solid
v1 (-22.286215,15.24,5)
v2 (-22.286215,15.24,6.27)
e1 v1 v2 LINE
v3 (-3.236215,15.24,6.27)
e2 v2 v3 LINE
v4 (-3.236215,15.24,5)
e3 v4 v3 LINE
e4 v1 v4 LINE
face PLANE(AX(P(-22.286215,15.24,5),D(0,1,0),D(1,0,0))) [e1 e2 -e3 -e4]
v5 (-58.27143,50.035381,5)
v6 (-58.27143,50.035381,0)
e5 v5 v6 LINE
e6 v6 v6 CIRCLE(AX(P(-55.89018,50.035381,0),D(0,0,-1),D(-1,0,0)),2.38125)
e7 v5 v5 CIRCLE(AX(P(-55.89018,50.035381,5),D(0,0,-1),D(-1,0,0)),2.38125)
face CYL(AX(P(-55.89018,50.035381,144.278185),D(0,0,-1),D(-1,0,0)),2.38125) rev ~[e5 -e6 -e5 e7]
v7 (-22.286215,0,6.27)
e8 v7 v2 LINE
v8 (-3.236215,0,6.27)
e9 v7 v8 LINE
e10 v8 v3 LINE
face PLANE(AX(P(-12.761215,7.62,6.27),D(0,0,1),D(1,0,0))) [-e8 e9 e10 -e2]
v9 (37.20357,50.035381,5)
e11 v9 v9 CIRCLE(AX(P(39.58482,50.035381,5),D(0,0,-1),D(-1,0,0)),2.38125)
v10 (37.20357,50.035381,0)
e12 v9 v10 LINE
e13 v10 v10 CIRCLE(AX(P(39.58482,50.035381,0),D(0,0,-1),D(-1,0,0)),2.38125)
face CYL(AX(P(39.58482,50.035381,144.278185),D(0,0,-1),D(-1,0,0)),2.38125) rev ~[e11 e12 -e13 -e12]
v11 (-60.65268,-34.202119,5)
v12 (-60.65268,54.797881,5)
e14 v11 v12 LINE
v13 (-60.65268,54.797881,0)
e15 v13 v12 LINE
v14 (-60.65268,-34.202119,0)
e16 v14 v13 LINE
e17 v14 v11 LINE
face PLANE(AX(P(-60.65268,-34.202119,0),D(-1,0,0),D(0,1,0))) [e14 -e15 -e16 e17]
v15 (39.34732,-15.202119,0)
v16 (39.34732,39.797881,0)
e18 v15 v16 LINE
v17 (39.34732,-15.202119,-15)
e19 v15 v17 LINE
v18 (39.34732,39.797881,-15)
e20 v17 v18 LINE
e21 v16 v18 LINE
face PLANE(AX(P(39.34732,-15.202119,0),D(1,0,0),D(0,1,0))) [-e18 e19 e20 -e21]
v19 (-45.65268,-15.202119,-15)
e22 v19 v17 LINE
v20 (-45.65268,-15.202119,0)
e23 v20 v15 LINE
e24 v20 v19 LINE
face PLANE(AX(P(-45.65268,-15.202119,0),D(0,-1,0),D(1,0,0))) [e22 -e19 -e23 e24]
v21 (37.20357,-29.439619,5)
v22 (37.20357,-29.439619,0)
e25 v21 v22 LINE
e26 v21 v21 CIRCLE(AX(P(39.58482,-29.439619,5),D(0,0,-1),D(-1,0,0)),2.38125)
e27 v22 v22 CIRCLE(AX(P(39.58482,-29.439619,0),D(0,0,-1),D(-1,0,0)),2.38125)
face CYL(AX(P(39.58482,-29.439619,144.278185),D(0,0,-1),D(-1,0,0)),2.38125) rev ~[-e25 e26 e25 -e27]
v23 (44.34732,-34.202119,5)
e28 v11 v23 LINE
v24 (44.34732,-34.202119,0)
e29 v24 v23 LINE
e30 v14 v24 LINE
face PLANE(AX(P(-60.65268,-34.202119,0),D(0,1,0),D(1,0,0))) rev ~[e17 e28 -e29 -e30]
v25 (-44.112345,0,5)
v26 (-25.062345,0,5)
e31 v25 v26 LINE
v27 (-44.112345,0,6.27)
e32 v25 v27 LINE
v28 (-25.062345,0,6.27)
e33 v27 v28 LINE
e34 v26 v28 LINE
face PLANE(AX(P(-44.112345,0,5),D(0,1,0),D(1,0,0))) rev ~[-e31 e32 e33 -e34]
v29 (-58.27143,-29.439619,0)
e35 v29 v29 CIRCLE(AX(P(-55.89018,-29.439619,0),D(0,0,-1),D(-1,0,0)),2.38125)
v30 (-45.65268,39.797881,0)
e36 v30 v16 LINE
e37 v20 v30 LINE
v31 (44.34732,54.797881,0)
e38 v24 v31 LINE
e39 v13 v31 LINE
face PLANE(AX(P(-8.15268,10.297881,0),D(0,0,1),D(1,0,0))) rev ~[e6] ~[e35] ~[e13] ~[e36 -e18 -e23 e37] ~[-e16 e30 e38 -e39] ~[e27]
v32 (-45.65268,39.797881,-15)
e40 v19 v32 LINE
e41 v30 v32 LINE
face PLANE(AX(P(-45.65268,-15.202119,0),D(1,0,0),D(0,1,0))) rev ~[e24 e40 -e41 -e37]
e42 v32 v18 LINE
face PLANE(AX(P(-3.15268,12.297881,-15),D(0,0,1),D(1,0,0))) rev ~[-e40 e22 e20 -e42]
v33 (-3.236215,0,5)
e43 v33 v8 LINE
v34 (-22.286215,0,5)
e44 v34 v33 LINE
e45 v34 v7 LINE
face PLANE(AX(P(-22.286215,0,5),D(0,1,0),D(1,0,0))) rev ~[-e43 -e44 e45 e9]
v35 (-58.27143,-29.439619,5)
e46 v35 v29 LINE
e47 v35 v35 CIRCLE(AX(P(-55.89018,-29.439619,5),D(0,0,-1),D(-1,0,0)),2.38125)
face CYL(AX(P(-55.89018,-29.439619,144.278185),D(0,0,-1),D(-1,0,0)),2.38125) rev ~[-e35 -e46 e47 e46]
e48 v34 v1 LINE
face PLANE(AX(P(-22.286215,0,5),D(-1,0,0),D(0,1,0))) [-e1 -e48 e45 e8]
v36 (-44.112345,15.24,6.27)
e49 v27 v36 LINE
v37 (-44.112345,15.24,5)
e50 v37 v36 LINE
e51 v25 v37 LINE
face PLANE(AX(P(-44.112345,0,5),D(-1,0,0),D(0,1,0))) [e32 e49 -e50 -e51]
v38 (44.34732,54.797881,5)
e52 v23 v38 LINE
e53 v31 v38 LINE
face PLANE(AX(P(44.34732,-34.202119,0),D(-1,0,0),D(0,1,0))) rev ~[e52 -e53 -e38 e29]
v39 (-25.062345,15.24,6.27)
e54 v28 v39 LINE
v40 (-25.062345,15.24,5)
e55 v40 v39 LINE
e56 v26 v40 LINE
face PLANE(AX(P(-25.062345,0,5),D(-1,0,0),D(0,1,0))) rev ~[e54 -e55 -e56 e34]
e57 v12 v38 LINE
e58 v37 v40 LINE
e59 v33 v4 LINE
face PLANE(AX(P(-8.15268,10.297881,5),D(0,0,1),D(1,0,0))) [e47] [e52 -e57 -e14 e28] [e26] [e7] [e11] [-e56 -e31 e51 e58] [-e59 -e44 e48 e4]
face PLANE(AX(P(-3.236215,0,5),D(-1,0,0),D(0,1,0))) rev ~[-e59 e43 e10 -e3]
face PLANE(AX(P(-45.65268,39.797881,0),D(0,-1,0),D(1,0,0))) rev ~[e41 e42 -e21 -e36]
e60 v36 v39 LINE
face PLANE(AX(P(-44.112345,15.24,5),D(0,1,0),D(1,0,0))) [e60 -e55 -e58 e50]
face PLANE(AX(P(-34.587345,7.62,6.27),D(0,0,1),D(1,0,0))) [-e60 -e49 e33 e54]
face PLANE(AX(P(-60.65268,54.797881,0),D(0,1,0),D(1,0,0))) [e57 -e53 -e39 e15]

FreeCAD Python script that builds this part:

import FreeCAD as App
import Part
import Sketcher

V = App.Vector


def add_polygon(sketch, points):
    """Adds a closed chain of lines whose ends are joined by coincident constraints."""
    first, n = sketch.GeometryCount, len(points)
    for a, b in zip(points, points[1:] + points[:1]):
        sketch.addGeometry(Part.LineSegment(App.Vector(*a, 0), App.Vector(*b, 0)), False)
    for i in range(n):
        sketch.addConstraint(Sketcher.Constraint("Coincident", first + i, 2, first + (i + 1) % n, 1))

doc = App.newDocument("Part")
body = doc.addObject("PartDesign::Body", "Body")

# Sketch on XY plane
sketch1 = doc.addObject("Sketcher::SketchObject", "Sketch")
body.addObject(sketch1)
sketch1.AttachmentSupport = (doc.XY_Plane, [""])
sketch1.MapMode = "FlatFace"
add_polygon(sketch1, [(-61, 55), (-61, -34), (44, -34), (44, 55)])  # lines 0-3
sketch1.addConstraint([
    Sketcher.Constraint("Vertical", 0),
    Sketcher.Constraint("Horizontal", 1),
    Sketcher.Constraint("Vertical", 2),
    Sketcher.Constraint("Horizontal", 3),
    Sketcher.Constraint("DistanceX", 1, 1, 1, 2, 105.0),
    Sketcher.Constraint("DistanceY", 0, 2, 0, 1, 89.0),
    Sketcher.Constraint("DistanceX", 0, 2, -1, 1, 60.65268),
    Sketcher.Constraint("DistanceY", 0, 2, -1, 1, 34.202119),
])
pad1 = doc.addObject("PartDesign::Pad", "Pad")
body.addObject(pad1)
pad1.Profile = sketch1
pad1.Length = 5

# Sketch on XY plane
sketch2 = doc.addObject("Sketcher::SketchObject", "Sketch001")
body.addObject(sketch2)
sketch2.AttachmentSupport = (doc.XY_Plane, [""])
sketch2.MapMode = "FlatFace"
add_polygon(sketch2, [(-46, 40), (-46, -15), (39, -15), (39, 40)])  # lines 0-3
sketch2.addConstraint([
    Sketcher.Constraint("Vertical", 0),
    Sketcher.Constraint("Horizontal", 1),
    Sketcher.Constraint("Vertical", 2),
    Sketcher.Constraint("Horizontal", 3),
    Sketcher.Constraint("DistanceX", 1, 1, 1, 2, 85.0),
    Sketcher.Constraint("DistanceY", 0, 2, 0, 1, 55.0),
    Sketcher.Constraint("DistanceX", 0, 2, -1, 1, 45.65268),
    Sketcher.Constraint("DistanceY", 0, 2, -1, 1, 15.202119),
])
pad2 = doc.addObject("PartDesign::Pad", "Pad001")
body.addObject(pad2)
pad2.Profile = sketch2
pad2.Length = 15
pad2.Reversed = True

# Sketch on XY plane
sketch3 = doc.addObject("Sketcher::SketchObject", "Sketch002")
body.addObject(sketch3)
sketch3.AttachmentSupport = (doc.XY_Plane, [""])
sketch3.MapMode = "FlatFace"
sketch3.AttachmentOffset = App.Placement(V(0, 0, 5), App.Rotation())
add_polygon(sketch3, [(-44, 15), (-44, 0), (-25, 0), (-25, 15)])  # lines 0-3
add_polygon(sketch3, [(-22, 15), (-22, 0), (-3, 0), (-3, 15)])  # lines 4-7
sketch3.addConstraint([
    Sketcher.Constraint("Vertical", 0),
    Sketcher.Constraint("Horizontal", 1),
    Sketcher.Constraint("Vertical", 2),
    Sketcher.Constraint("Horizontal", 3),
    Sketcher.Constraint("Vertical", 4),
    Sketcher.Constraint("Horizontal", 5),
    Sketcher.Constraint("Vertical", 6),
    Sketcher.Constraint("Horizontal", 7),
    Sketcher.Constraint("PointOnObject", 0, 2, -1),
    Sketcher.Constraint("PointOnObject", 4, 2, -1),
    Sketcher.Constraint("Horizontal", 3, 2, 6, 2),
    Sketcher.Constraint("Equal", 3, 5),
    Sketcher.Constraint("DistanceX", 1, 1, 1, 2, 19.05),
    Sketcher.Constraint("DistanceY", 0, 2, 0, 1, 15.24),
    Sketcher.Constraint("DistanceX", 1, 2, 4, 2, 2.77613),
    Sketcher.Constraint("DistanceX", 0, 2, -1, 1, 44.112345),
])
pad3 = doc.addObject("PartDesign::Pad", "Pad002")
body.addObject(pad3)
pad3.Profile = sketch3
pad3.Length = 1.27

# Sketch on XY plane
sketch4 = doc.addObject("Sketcher::SketchObject", "Sketch003")
body.addObject(sketch4)
sketch4.AttachmentSupport = (doc.XY_Plane, [""])
sketch4.MapMode = "FlatFace"
sketch4.AttachmentOffset = App.Placement(V(0, 0, 5), App.Rotation())
sketch4.addGeometry([
    Part.Circle(V(-55.9, 50, 0), V(0, 0, 1), 2.4),
    Part.Circle(V(-55.9, -29.4, 0), V(0, 0, 1), 2.4),
    Part.Circle(V(39.6, 50, 0), V(0, 0, 1), 2.4),
    Part.Circle(V(39.6, -29.4, 0), V(0, 0, 1), 2.4),
], False)
sketch4.addConstraint([
    Sketcher.Constraint("Equal", 0, 1),
    Sketcher.Constraint("Equal", 1, 2),
    Sketcher.Constraint("Equal", 2, 3),
    Sketcher.Constraint("Horizontal", 0, 3, 2, 3),
    Sketcher.Constraint("Horizontal", 1, 3, 3, 3),
    Sketcher.Constraint("Vertical", 0, 3, 1, 3),
    Sketcher.Constraint("Vertical", 2, 3, 3, 3),
    Sketcher.Constraint("Diameter", 0, 4.7625),
    Sketcher.Constraint("DistanceY", 1, 3, 0, 3, 79.475),
    Sketcher.Constraint("DistanceX", 0, 3, 2, 3, 95.475),
    Sketcher.Constraint("DistanceX", 0, 3, -1, 1, 55.89018),
    Sketcher.Constraint("DistanceY", -1, 1, 0, 3, 50.035381),
])
doc.recompute()
hole = doc.addObject("PartDesign::Hole", "Hole")
body.addObject(hole)
hole.Profile = sketch4
hole.ThreadType = "None"
hole.Diameter = 4.7625
hole.DepthType = "ThroughAll"

doc.recompute()
